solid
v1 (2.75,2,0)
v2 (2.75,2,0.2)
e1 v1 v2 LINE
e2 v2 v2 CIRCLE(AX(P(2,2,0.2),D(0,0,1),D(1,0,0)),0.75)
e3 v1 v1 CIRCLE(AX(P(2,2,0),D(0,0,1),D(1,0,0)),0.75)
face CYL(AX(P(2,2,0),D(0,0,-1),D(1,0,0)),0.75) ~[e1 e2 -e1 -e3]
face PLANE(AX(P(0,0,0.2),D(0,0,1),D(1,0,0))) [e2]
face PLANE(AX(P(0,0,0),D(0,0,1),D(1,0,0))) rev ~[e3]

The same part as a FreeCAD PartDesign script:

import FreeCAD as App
import Part
import Sketcher

V = App.Vector
Q = App.Units.Quantity

doc = App.newDocument("Part")
body = doc.addObject("PartDesign::Body", "Body")

# Sketch on XY plane
sketch1 = doc.addObject("Sketcher::SketchObject", "Sketch")
body.addObject(sketch1)
sketch1.AttachmentSupport = (doc.XY_Plane, [""])
sketch1.MapMode = "FlatFace"
sketch1.addGeometry(Part.Circle(V(2, 2, 0), V(0, 0, 1), 0.8), False)
sketch1.addConstraint(Sketcher.Constraint("Diameter", 0, Q("1.5 mm")))
sketch1.addConstraint(Sketcher.Constraint("DistanceX", -1, 1, 0, 3, Q("2 mm")))
sketch1.addConstraint(Sketcher.Constraint("DistanceY", -1, 1, 0, 3, Q("2 mm")))
pad1 = doc.addObject("PartDesign::Pad", "Pad")
body.addObject(pad1)
pad1.Profile = sketch1
pad1.Length = 0.2

doc.recompute()
